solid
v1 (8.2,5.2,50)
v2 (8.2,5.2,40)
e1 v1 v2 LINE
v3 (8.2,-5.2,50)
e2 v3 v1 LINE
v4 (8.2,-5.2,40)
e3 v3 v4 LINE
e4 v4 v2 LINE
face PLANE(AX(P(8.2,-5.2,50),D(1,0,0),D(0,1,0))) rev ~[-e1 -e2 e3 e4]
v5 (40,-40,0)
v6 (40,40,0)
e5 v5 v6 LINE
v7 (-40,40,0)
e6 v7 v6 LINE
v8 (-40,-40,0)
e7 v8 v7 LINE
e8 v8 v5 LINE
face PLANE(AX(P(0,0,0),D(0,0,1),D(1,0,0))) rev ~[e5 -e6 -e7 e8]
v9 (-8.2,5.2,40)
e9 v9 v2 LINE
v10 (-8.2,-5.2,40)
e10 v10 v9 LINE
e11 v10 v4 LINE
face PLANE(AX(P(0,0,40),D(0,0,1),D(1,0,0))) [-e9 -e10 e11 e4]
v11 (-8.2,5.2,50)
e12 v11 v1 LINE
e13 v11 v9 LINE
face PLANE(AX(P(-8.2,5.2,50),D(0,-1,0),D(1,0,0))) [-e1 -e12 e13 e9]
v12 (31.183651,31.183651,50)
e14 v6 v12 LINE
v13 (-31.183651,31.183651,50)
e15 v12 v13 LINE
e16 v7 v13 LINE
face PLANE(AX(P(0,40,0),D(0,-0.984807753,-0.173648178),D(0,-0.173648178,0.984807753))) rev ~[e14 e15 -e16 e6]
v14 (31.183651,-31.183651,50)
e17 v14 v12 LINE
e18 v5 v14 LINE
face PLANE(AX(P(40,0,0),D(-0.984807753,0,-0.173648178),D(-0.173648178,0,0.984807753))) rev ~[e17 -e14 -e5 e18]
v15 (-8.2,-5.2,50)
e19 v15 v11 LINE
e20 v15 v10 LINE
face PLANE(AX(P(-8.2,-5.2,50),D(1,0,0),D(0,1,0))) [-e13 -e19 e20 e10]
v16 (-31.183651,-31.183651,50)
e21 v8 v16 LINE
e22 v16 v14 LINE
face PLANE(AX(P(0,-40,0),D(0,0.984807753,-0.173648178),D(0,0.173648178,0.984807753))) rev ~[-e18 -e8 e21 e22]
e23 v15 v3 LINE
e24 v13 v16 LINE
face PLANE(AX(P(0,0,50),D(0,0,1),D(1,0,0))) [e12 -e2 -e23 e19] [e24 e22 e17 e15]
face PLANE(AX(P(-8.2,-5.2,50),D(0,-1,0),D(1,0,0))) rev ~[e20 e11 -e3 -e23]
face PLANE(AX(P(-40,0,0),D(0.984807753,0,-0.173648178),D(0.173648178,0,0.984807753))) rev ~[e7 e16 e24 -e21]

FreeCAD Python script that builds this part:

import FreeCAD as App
import Part
import Sketcher
Q = App.Units.Quantity


def add_polygon(sketch, points):
    """Adds a closed chain of lines whose ends are joined by coincident constraints."""
    first, n = sketch.GeometryCount, len(points)
    for a, b in zip(points, points[1:] + points[:1]):
        sketch.addGeometry(Part.LineSegment(App.Vector(*a, 0), App.Vector(*b, 0)), False)
    for i in range(n):
        sketch.addConstraint(Sketcher.Constraint("Coincident", first + i, 2, first + (i + 1) % n, 1))

doc = App.newDocument("Part")
body = doc.addObject("PartDesign::Body", "Body")

sketch1 = body.newObject("Sketcher::SketchObject", "Sketch")
sketch1.AttachmentSupport = (doc.getObject("XY_Plane"), [""])
sketch1.MapMode = "FlatFace"
add_polygon(sketch1, [(-40, 40), (-40, -40), (40, -40), (40, 40)])
sketch1.addConstraint([
    Sketcher.Constraint("Vertical", 0),
    Sketcher.Constraint("Horizontal", 1),
    Sketcher.Constraint("Vertical", 2),
    Sketcher.Constraint("Horizontal", 3),
    Sketcher.Constraint("Symmetric", 0, 2, 2, 2, -1, 1),
    Sketcher.Constraint("Equal", 3, 0),
    Sketcher.Constraint("DistanceX", 1, 1, 1, 2, Q("80 mm")),
])
pad1 = body.newObject("PartDesign::Pad", "Pad")
pad1.Profile = sketch1
pad1.Length = 50
pad1.TaperAngle = -10

sketch2 = body.newObject("Sketcher::SketchObject", "Sketch001")
sketch2.AttachmentSupport = (doc.getObject("XY_Plane"), [""])
sketch2.MapMode = "FlatFace"
sketch2.AttachmentOffset = App.Placement(App.Vector(0, 0, 50), App.Rotation())
add_polygon(sketch2, [(-8, 5), (-8, -5), (8, -5), (8, 5)])
sketch2.addConstraint([
    Sketcher.Constraint("Vertical", 0),
    Sketcher.Constraint("Horizontal", 1),
    Sketcher.Constraint("Vertical", 2),
    Sketcher.Constraint("Horizontal", 3),
    Sketcher.Constraint("Symmetric", 0, 2, 2, 2, -1, 1),
    Sketcher.Constraint("DistanceX", 1, 1, 1, 2, Q("16.4 mm")),
    Sketcher.Constraint("DistanceY", 0, 2, 0, 1, Q("10.4 mm")),
])
pocket1 = body.newObject("PartDesign::Pocket", "Pocket")
pocket1.Profile = sketch2
pocket1.Length = 10

doc.recompute()
